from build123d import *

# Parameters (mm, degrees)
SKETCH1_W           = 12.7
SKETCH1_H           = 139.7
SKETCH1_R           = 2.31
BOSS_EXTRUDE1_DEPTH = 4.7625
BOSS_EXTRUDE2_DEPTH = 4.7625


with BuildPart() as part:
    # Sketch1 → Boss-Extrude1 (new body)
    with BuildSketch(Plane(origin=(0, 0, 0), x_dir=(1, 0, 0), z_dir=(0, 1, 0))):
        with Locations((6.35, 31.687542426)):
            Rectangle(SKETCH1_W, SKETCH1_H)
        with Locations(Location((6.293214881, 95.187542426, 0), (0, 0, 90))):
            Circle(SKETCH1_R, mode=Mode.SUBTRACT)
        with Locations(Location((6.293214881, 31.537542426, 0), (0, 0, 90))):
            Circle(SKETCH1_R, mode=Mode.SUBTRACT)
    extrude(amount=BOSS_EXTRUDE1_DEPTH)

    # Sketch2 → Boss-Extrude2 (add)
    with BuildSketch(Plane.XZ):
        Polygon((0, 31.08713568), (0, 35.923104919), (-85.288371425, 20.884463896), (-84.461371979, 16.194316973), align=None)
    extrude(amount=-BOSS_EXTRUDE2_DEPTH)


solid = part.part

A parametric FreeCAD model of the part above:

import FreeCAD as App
import Part
import Sketcher

V = App.Vector
Q = App.Units.Quantity


def add_polygon(sketch, points):
    """Adds a closed chain of lines whose ends are joined by coincident constraints."""
    first, n = sketch.GeometryCount, len(points)
    for a, b in zip(points, points[1:] + points[:1]):
        sketch.addGeometry(Part.LineSegment(App.Vector(*a, 0), App.Vector(*b, 0)), False)
    for i in range(n):
        sketch.addConstraint(Sketcher.Constraint("Coincident", first + i, 2, first + (i + 1) % n, 1))

doc = App.newDocument("Part")
params = doc.addObject("Spreadsheet::Sheet", "Params")
for row, (alias, value) in enumerate([
    ("sketch1_width", "0.5 in"),
    ("sketch1_height", "5.5 in"),
    ("pad1_length", "0.1875 in"),
    ("sketch2_length", "0.1875 in"),
    ("pad2_length", "0.1875 in"),
], start=1):
    params.set(f"A{row}", alias)
    params.set(f"B{row}", "=" + value)
    params.setAlias(f"B{row}", alias)

body = doc.addObject("PartDesign::Body", "Body")

# Sketch on XZ plane
sketch1 = body.newObject("Sketcher::SketchObject", "Sketch")
sketch1.AttachmentSupport = (doc.getObject("XZ_Plane"), [""])
sketch1.MapMode = "FlatFace"
add_polygon(sketch1, [(0, -101.537542), (0, 38.162458), (12.7, 38.162458), (12.7, -101.537542)])  # lines 0-3
sketch1.addGeometry(Part.Circle(V(6.293215, -31.537542, 0), V(0, 0, 1), 2.31), False)  # 4
sketch1.addGeometry(Part.Circle(V(6.293215, -95.187542, 0), V(0, 0, 1), 2.31), False)  # 5
sketch1.addConstraint(Sketcher.Constraint("Vertical", 0))
sketch1.addConstraint(Sketcher.Constraint("Horizontal", 1))
sketch1.addConstraint(Sketcher.Constraint("Vertical", 2))
sketch1.addConstraint(Sketcher.Constraint("Horizontal", 3))
sketch1.addConstraint(Sketcher.Constraint("Equal", 4, 5))
sketch1.addConstraint(Sketcher.Constraint("PointOnObject", 0, 2, -2))
sketch1.addConstraint(Sketcher.Constraint("Vertical", 4, 3, 5, 3))
sketch1.addConstraint(Sketcher.Constraint("DistanceX", 1, 1, 1, 2, Q("0.5 in")))
sketch1.addConstraint(Sketcher.Constraint("DistanceY", 0, 1, 0, 2, Q("5.5 in")))
sketch1.addConstraint(Sketcher.Constraint("Diameter", 4, 4.62))
sketch1.addConstraint(Sketcher.Constraint("DistanceY", 5, 3, 0, 2, Q("5.25 in")))
sketch1.addConstraint(Sketcher.Constraint("DistanceY", 5, 3, 4, 3, 63.65))
sketch1.addConstraint(Sketcher.Constraint("DistanceX", -1, 1, 4, 3, 6.293215))
sketch1.addConstraint(Sketcher.Constraint("DistanceY", 4, 3, -1, 1, 31.537542))
sketch1.setExpression("Constraints[11]", "Params.sketch1_width")
sketch1.setExpression("Constraints[12]", "Params.sketch1_height")
pad1 = body.newObject("PartDesign::Pad", "Pad")
pad1.Profile = sketch1
pad1.setExpression("Length", "Params.pad1_length")
pad1.Reversed = True

# Sketch on XZ plane
sketch2 = body.newObject("Sketcher::SketchObject", "Sketch001")
sketch2.AttachmentSupport = (doc.getObject("XZ_Plane"), [""])
sketch2.MapMode = "FlatFace"
add_polygon(sketch2, [(0, 31.087136), (0, 35.923105), (-85.288371, 20.884464), (-84.461372, 16.194317)])  # lines 0-3
sketch2.addConstraint(Sketcher.Constraint("Vertical", 0))
sketch2.addConstraint(Sketcher.Constraint("PointOnObject", 0, 2, -2))
sketch2.addConstraint(Sketcher.Constraint("Perpendicular", 1, 2))
sketch2.addConstraint(Sketcher.Constraint("Perpendicular", 2, 3))
sketch2.addConstraint(Sketcher.Constraint("Angle", 1, Q("-170 deg")))
sketch2.addConstraint(Sketcher.Constraint("Distance", 2, Q("0.1875 in")))
sketch2.addConstraint(Sketcher.Constraint("DistanceX", 1, 2, -1, 1, 85.288371))
sketch2.addConstraint(Sketcher.Constraint("DistanceY", -1, 1, 0, 2, 35.923105))
sketch2.setExpression("Constraints[9]", "Params.sketch2_length")
pad2 = body.newObject("PartDesign::Pad", "Pad001")
pad2.Profile = sketch2
pad2.setExpression("Length", "Params.pad2_length")
pad2.Reversed = True

doc.recompute()
